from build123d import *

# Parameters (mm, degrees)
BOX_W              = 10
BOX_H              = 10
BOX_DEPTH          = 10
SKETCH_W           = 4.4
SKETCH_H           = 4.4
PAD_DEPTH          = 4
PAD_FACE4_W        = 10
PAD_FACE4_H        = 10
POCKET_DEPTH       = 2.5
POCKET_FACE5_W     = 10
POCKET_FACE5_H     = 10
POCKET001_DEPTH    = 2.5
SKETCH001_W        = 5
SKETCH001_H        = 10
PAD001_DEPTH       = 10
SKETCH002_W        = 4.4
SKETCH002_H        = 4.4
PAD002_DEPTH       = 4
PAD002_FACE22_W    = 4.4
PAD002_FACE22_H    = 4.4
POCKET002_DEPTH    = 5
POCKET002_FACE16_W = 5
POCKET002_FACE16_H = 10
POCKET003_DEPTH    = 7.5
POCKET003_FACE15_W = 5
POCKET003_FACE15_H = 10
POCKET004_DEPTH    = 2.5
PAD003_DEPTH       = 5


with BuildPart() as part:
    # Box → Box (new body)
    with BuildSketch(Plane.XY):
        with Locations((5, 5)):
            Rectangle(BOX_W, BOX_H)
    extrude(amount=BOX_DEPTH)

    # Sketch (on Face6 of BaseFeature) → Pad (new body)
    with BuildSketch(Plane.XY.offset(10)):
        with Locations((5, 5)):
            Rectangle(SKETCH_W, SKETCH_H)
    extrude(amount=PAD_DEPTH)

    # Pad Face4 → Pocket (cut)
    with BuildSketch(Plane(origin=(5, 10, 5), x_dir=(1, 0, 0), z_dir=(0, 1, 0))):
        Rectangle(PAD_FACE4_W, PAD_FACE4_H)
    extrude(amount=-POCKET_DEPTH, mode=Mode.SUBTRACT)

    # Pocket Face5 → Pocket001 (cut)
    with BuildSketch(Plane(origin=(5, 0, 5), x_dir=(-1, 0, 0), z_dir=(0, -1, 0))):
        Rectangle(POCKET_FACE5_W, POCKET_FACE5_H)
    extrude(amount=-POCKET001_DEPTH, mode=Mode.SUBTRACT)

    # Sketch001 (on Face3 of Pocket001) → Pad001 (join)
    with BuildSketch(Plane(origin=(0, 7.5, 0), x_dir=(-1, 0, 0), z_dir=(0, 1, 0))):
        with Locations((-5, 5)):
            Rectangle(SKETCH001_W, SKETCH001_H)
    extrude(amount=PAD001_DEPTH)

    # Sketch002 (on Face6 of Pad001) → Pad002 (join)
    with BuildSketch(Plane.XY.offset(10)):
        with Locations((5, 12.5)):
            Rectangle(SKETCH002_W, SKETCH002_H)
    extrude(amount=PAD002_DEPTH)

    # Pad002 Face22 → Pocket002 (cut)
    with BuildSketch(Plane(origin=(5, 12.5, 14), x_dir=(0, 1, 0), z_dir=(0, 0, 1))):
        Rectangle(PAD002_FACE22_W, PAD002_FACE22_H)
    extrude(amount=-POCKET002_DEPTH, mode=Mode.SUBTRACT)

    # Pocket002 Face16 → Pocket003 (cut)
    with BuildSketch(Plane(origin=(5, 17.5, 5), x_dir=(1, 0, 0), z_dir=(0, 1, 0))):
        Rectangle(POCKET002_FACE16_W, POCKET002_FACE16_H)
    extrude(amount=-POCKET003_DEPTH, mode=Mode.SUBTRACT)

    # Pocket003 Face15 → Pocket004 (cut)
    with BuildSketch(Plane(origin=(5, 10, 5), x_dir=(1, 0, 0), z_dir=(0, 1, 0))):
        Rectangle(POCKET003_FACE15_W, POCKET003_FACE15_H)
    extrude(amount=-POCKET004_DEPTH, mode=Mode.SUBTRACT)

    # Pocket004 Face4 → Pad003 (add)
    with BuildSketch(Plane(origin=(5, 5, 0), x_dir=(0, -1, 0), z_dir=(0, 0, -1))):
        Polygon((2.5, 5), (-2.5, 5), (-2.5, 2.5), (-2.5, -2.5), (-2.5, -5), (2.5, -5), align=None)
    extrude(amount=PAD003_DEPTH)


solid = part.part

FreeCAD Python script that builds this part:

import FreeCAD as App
import Part
import Sketcher
from FreeCAD import Vector

doc = App.newDocument("Part")
body = doc.addObject("PartDesign::Body", "Body")

# Sketch on XY plane
sketch1 = doc.addObject("Sketcher::SketchObject", "Sketch")
body.addObject(sketch1)
sketch1.AttachmentSupport = (doc.XY_Plane, [""])
sketch1.MapMode = "FlatFace"
sketch1.addGeometry([
    Part.LineSegment(Vector(0, 10, 0), Vector(0, 0, 0)),
    Part.LineSegment(Vector(0, 0, 0), Vector(10, 0, 0)),
    Part.LineSegment(Vector(10, 0, 0), Vector(10, 10, 0)),
    Part.LineSegment(Vector(10, 10, 0), Vector(0, 10, 0)),
], False)
sketch1.addConstraint([
    Sketcher.Constraint("Coincident", 0, 2, 1, 1),
    Sketcher.Constraint("Coincident", 1, 2, 2, 1),
    Sketcher.Constraint("Coincident", 2, 2, 3, 1),
    Sketcher.Constraint("Coincident", 3, 2, 0, 1),
    Sketcher.Constraint("Vertical", 0),
    Sketcher.Constraint("Horizontal", 1),
    Sketcher.Constraint("Vertical", 2),
    Sketcher.Constraint("Horizontal", 3),
    Sketcher.Constraint("Coincident", 0, 2, -1, 1),
    Sketcher.Constraint("Equal", 3, 0),
    Sketcher.Constraint("DistanceX", 1, 1, 1, 2, 10.0),
])
pad1 = doc.addObject("PartDesign::Pad", "Pad")
body.addObject(pad1)
pad1.Profile = sketch1
pad1.Length = 10

# Sketch on XY plane
sketch2 = doc.addObject("Sketcher::SketchObject", "Sketch001")
body.addObject(sketch2)
sketch2.AttachmentSupport = (doc.XY_Plane, [""])
sketch2.MapMode = "FlatFace"
sketch2.AttachmentOffset = App.Placement(Vector(0, 0, 10), App.Rotation())
sketch2.addGeometry([
    Part.LineSegment(Vector(2.8, 7.2, 0), Vector(2.8, 2.8, 0)),
    Part.LineSegment(Vector(2.8, 2.8, 0), Vector(7.2, 2.8, 0)),
    Part.LineSegment(Vector(7.2, 2.8, 0), Vector(7.2, 7.2, 0)),
    Part.LineSegment(Vector(7.2, 7.2, 0), Vector(2.8, 7.2, 0)),
], False)
sketch2.addConstraint([
    Sketcher.Constraint("Coincident", 0, 2, 1, 1),
    Sketcher.Constraint("Coincident", 1, 2, 2, 1),
    Sketcher.Constraint("Coincident", 2, 2, 3, 1),
    Sketcher.Constraint("Coincident", 3, 2, 0, 1),
    Sketcher.Constraint("Vertical", 0),
    Sketcher.Constraint("Horizontal", 1),
    Sketcher.Constraint("Vertical", 2),
    Sketcher.Constraint("Horizontal", 3),
    Sketcher.Constraint("Equal", 3, 0),
    Sketcher.Constraint("DistanceX", 1, 1, 1, 2, 4.4),
    Sketcher.Constraint("DistanceX", -1, 1, 0, 2, 2.8),
    Sketcher.Constraint("DistanceY", -1, 1, 0, 2, 2.8),
])
pad2 = doc.addObject("PartDesign::Pad", "Pad001")
body.addObject(pad2)
pad2.Profile = sketch2
pad2.Length = 4

# Sketch on XZ plane
sketch3 = doc.addObject("Sketcher::SketchObject", "Sketch002")
body.addObject(sketch3)
sketch3.AttachmentSupport = (doc.XZ_Plane, [""])
sketch3.MapMode = "FlatFace"
sketch3.AttachmentOffset = App.Placement(Vector(0, 0, -10), App.Rotation())
sketch3.addGeometry([
    Part.LineSegment(Vector(0, 0, 0), Vector(0, 10, 0)),
    Part.LineSegment(Vector(0, 10, 0), Vector(10, 10, 0)),
    Part.LineSegment(Vector(10, 10, 0), Vector(10, 0, 0)),
    Part.LineSegment(Vector(10, 0, 0), Vector(0, 0, 0)),
], False)
sketch3.addConstraint([
    Sketcher.Constraint("Coincident", 0, 2, 1, 1),
    Sketcher.Constraint("Coincident", 1, 2, 2, 1),
    Sketcher.Constraint("Coincident", 2, 2, 3, 1),
    Sketcher.Constraint("Coincident", 3, 2, 0, 1),
    Sketcher.Constraint("Vertical", 0),
    Sketcher.Constraint("Horizontal", 1),
    Sketcher.Constraint("Vertical", 2),
    Sketcher.Constraint("Horizontal", 3),
    Sketcher.Constraint("Coincident", 3, 2, -1, 1),
    Sketcher.Constraint("Equal", 3, 0),
    Sketcher.Constraint("DistanceX", 1, 1, 1, 2, 10.0),
])
pocket1 = doc.addObject("PartDesign::Pocket", "Pocket")
body.addObject(pocket1)
pocket1.Profile = sketch3
pocket1.Length = 2.5
pocket1.Reversed = True

# Sketch on XZ plane
sketch4 = doc.addObject("Sketcher::SketchObject", "Sketch003")
body.addObject(sketch4)
sketch4.AttachmentSupport = (doc.XZ_Plane, [""])
sketch4.MapMode = "FlatFace"
sketch4.addGeometry([
    Part.LineSegment(Vector(10, 0, 0), Vector(10, 10, 0)),
    Part.LineSegment(Vector(10, 10, 0), Vector(0, 10, 0)),
    Part.LineSegment(Vector(0, 10, 0), Vector(0, 0, 0)),
    Part.LineSegment(Vector(0, 0, 0), Vector(10, 0, 0)),
], False)
sketch4.addConstraint([
    Sketcher.Constraint("Coincident", 0, 2, 1, 1),
    Sketcher.Constraint("Coincident", 1, 2, 2, 1),
    Sketcher.Constraint("Coincident", 2, 2, 3, 1),
    Sketcher.Constraint("Coincident", 3, 2, 0, 1),
    Sketcher.Constraint("Vertical", 0),
    Sketcher.Constraint("Horizontal", 1),
    Sketcher.Constraint("Vertical", 2),
    Sketcher.Constraint("Horizontal", 3),
    Sketcher.Constraint("Coincident", 2, 2, -1, 1),
    Sketcher.Constraint("Equal", 3, 0),
    Sketcher.Constraint("DistanceX", 1, 2, 1, 1, 10.0),
])
pocket2 = doc.addObject("PartDesign::Pocket", "Pocket001")
body.addObject(pocket2)
pocket2.Profile = sketch4
pocket2.Length = 2.5

# Sketch on XZ plane
sketch5 = doc.addObject("Sketcher::SketchObject", "Sketch004")
body.addObject(sketch5)
sketch5.AttachmentSupport = (doc.XZ_Plane, [""])
sketch5.MapMode = "FlatFace"
sketch5.AttachmentOffset = App.Placement(Vector(0, 0, -7.5), App.Rotation())
sketch5.addGeometry([
    Part.LineSegment(Vector(8, 10, 0), Vector(8, 0, 0)),
    Part.LineSegment(Vector(8, 0, 0), Vector(2, 0, 0)),
    Part.LineSegment(Vector(2, 0, 0), Vector(2, 10, 0)),
    Part.LineSegment(Vector(2, 10, 0), Vector(8, 10, 0)),
], False)
sketch5.addConstraint([
    Sketcher.Constraint("Coincident", 0, 2, 1, 1),
    Sketcher.Constraint("Coincident", 1, 2, 2, 1),
    Sketcher.Constraint("Coincident", 2, 2, 3, 1),
    Sketcher.Constraint("Coincident", 3, 2, 0, 1),
    Sketcher.Constraint("Vertical", 0),
    Sketcher.Constraint("Horizontal", 1),
    Sketcher.Constraint("Vertical", 2),
    Sketcher.Constraint("Horizontal", 3),
    Sketcher.Constraint("PointOnObject", 0, 2, -1),
    Sketcher.Constraint("DistanceX", 1, 2, 1, 1, 5.0),
    Sketcher.Constraint("DistanceY", 0, 2, 0, 1, 10.0),
    Sketcher.Constraint("DistanceX", -1, 1, 0, 2, 7.5),
])
pad3 = doc.addObject("PartDesign::Pad", "Pad002")
body.addObject(pad3)
pad3.Profile = sketch5
pad3.Length = 10
pad3.Reversed = True

# Sketch on XY plane
sketch6 = doc.addObject("Sketcher::SketchObject", "Sketch005")
body.addObject(sketch6)
sketch6.AttachmentSupport = (doc.XY_Plane, [""])
sketch6.MapMode = "FlatFace"
sketch6.AttachmentOffset = App.Placement(Vector(0, 0, 10), App.Rotation())
sketch6.addGeometry([
    Part.LineSegment(Vector(2.8, 14.7, 0), Vector(2.8, 10.3, 0)),
    Part.LineSegment(Vector(2.8, 10.3, 0), Vector(7.2, 10.3, 0)),
    Part.LineSegment(Vector(7.2, 10.3, 0), Vector(7.2, 14.7, 0)),
    Part.LineSegment(Vector(7.2, 14.7, 0), Vector(2.8, 14.7, 0)),
], False)
sketch6.addConstraint([
    Sketcher.Constraint("Coincident", 0, 2, 1, 1),
    Sketcher.Constraint("Coincident", 1, 2, 2, 1),
    Sketcher.Constraint("Coincident", 2, 2, 3, 1),
    Sketcher.Constraint("Coincident", 3, 2, 0, 1),
    Sketcher.Constraint("Vertical", 0),
    Sketcher.Constraint("Horizontal", 1),
    Sketcher.Constraint("Vertical", 2),
    Sketcher.Constraint("Horizontal", 3),
    Sketcher.Constraint("Equal", 3, 0),
    Sketcher.Constraint("DistanceX", 1, 1, 1, 2, 4.4),
    Sketcher.Constraint("DistanceX", -1, 1, 0, 2, 2.8),
    Sketcher.Constraint("DistanceY", -1, 1, 0, 2, 10.3),
])
pad4 = doc.addObject("PartDesign::Pad", "Pad003")
body.addObject(pad4)
pad4.Profile = sketch6
pad4.Length = 4

# Sketch on XY plane
sketch7 = doc.addObject("Sketcher::SketchObject", "Sketch006")
body.addObject(sketch7)
sketch7.AttachmentSupport = (doc.XY_Plane, [""])
sketch7.MapMode = "FlatFace"
sketch7.AttachmentOffset = App.Placement(Vector(0, 0, 14), App.Rotation())
sketch7.addGeometry([
    Part.LineSegment(Vector(2.8, 10.3, 0), Vector(7.2, 10.3, 0)),
    Part.LineSegment(Vector(7.2, 10.3, 0), Vector(7.2, 14.7, 0)),
    Part.LineSegment(Vector(7.2, 14.7, 0), Vector(2.8, 14.7, 0)),
    Part.LineSegment(Vector(2.8, 14.7, 0), Vector(2.8, 10.3, 0)),
], False)
sketch7.addConstraint([
    Sketcher.Constraint("Coincident", 0, 2, 1, 1),
    Sketcher.Constraint("Coincident", 1, 2, 2, 1),
    Sketcher.Constraint("Coincident", 2, 2, 3, 1),
    Sketcher.Constraint("Coincident", 3, 2, 0, 1),
    Sketcher.Constraint("Horizontal", 0),
    Sketcher.Constraint("Vertical", 1),
    Sketcher.Constraint("Horizontal", 2),
    Sketcher.Constraint("Vertical", 3),
    Sketcher.Constraint("Equal", 2, 1),
    Sketcher.Constraint("DistanceX", 0, 1, 0, 2, 4.4),
    Sketcher.Constraint("DistanceX", -1, 1, 0, 2, 7.2),
    Sketcher.Constraint("DistanceY", -1, 1, 0, 2, 10.3),
])
pocket3 = doc.addObject("PartDesign::Pocket", "Pocket002")
body.addObject(pocket3)
pocket3.Profile = sketch7
pocket3.Length = 5

# Sketch on XZ plane
sketch8 = doc.addObject("Sketcher::SketchObject", "Sketch007")
body.addObject(sketch8)
sketch8.AttachmentSupport = (doc.XZ_Plane, [""])
sketch8.MapMode = "FlatFace"
sketch8.AttachmentOffset = App.Placement(Vector(0, 0, -17.5), App.Rotation())
sketch8.addGeometry([
    Part.LineSegment(Vector(2, 0, 0), Vector(2, 10, 0)),
    Part.LineSegment(Vector(2, 10, 0), Vector(8, 10, 0)),
    Part.LineSegment(Vector(8, 10, 0), Vector(8, 0, 0)),
    Part.LineSegment(Vector(8, 0, 0), Vector(2, 0, 0)),
], False)
sketch8.addConstraint([
    Sketcher.Constraint("Coincident", 0, 2, 1, 1),
    Sketcher.Constraint("Coincident", 1, 2, 2, 1),
    Sketcher.Constraint("Coincident", 2, 2, 3, 1),
    Sketcher.Constraint("Coincident", 3, 2, 0, 1),
    Sketcher.Constraint("Vertical", 0),
    Sketcher.Constraint("Horizontal", 1),
    Sketcher.Constraint("Vertical", 2),
    Sketcher.Constraint("Horizontal", 3),
    Sketcher.Constraint("PointOnObject", 2, 2, -1),
    Sketcher.Constraint("DistanceX", 1, 1, 1, 2, 5.0),
    Sketcher.Constraint("DistanceY", 0, 1, 0, 2, 10.0),
    Sketcher.Constraint("DistanceX", -1, 1, 0, 2, 2.5),
])
pocket4 = doc.addObject("PartDesign::Pocket", "Pocket003")
body.addObject(pocket4)
pocket4.Profile = sketch8
pocket4.Length = 7.5
pocket4.Reversed = True

# Sketch on XZ plane
sketch9 = doc.addObject("Sketcher::SketchObject", "Sketch008")
body.addObject(sketch9)
sketch9.AttachmentSupport = (doc.XZ_Plane, [""])
sketch9.MapMode = "FlatFace"
sketch9.AttachmentOffset = App.Placement(Vector(0, 0, -10), App.Rotation())
sketch9.addGeometry([
    Part.LineSegment(Vector(2, 0, 0), Vector(2, 10, 0)),
    Part.LineSegment(Vector(2, 10, 0), Vector(8, 10, 0)),
    Part.LineSegment(Vector(8, 10, 0), Vector(8, 0, 0)),
    Part.LineSegment(Vector(8, 0, 0), Vector(2, 0, 0)),
], False)
sketch9.addConstraint([
    Sketcher.Constraint("Coincident", 0, 2, 1, 1),
    Sketcher.Constraint("Coincident", 1, 2, 2, 1),
    Sketcher.Constraint("Coincident", 2, 2, 3, 1),
    Sketcher.Constraint("Coincident", 3, 2, 0, 1),
    Sketcher.Constraint("Vertical", 0),
    Sketcher.Constraint("Horizontal", 1),
    Sketcher.Constraint("Vertical", 2),
    Sketcher.Constraint("Horizontal", 3),
    Sketcher.Constraint("PointOnObject", 2, 2, -1),
    Sketcher.Constraint("DistanceX", 1, 1, 1, 2, 5.0),
    Sketcher.Constraint("DistanceY", 0, 1, 0, 2, 10.0),
    Sketcher.Constraint("DistanceX", -1, 1, 0, 2, 2.5),
])
pocket5 = doc.addObject("PartDesign::Pocket", "Pocket004")
body.addObject(pocket5)
pocket5.Profile = sketch9
pocket5.Length = 2.5
pocket5.Reversed = True

# Sketch on XY plane
sketch10 = doc.addObject("Sketcher::SketchObject", "Sketch009")
body.addObject(sketch10)
sketch10.AttachmentSupport = (doc.XY_Plane, [""])
sketch10.MapMode = "FlatFace"
sketch10.addGeometry([
    Part.LineSegment(Vector(0, 2, 0), Vector(0, 8, 0)),
    Part.LineSegment(Vector(0, 8, 0), Vector(10, 8, 0)),
    Part.LineSegment(Vector(10, 8, 0), Vector(10, 2, 0)),
    Part.LineSegment(Vector(10, 2, 0), Vector(0, 2, 0)),
], False)
sketch10.addConstraint([
    Sketcher.Constraint("Coincident", 0, 2, 1, 1),
    Sketcher.Constraint("Coincident", 1, 2, 2, 1),
    Sketcher.Constraint("Coincident", 2, 2, 3, 1),
    Sketcher.Constraint("Coincident", 3, 2, 0, 1),
    Sketcher.Constraint("Vertical", 0),
    Sketcher.Constraint("Horizontal", 1),
    Sketcher.Constraint("Vertical", 2),
    Sketcher.Constraint("Horizontal", 3),
    Sketcher.Constraint("PointOnObject", 0, 2, -2),
    Sketcher.Constraint("DistanceX", 1, 1, 1, 2, 10.0),
    Sketcher.Constraint("DistanceY", 0, 1, 0, 2, 5.0),
    Sketcher.Constraint("DistanceY", -1, 1, 0, 2, 7.5),
])
pad5 = doc.addObject("PartDesign::Pad", "Pad004")
body.addObject(pad5)
pad5.Profile = sketch10
pad5.Length = 5
pad5.Reversed = True

doc.recompute()
